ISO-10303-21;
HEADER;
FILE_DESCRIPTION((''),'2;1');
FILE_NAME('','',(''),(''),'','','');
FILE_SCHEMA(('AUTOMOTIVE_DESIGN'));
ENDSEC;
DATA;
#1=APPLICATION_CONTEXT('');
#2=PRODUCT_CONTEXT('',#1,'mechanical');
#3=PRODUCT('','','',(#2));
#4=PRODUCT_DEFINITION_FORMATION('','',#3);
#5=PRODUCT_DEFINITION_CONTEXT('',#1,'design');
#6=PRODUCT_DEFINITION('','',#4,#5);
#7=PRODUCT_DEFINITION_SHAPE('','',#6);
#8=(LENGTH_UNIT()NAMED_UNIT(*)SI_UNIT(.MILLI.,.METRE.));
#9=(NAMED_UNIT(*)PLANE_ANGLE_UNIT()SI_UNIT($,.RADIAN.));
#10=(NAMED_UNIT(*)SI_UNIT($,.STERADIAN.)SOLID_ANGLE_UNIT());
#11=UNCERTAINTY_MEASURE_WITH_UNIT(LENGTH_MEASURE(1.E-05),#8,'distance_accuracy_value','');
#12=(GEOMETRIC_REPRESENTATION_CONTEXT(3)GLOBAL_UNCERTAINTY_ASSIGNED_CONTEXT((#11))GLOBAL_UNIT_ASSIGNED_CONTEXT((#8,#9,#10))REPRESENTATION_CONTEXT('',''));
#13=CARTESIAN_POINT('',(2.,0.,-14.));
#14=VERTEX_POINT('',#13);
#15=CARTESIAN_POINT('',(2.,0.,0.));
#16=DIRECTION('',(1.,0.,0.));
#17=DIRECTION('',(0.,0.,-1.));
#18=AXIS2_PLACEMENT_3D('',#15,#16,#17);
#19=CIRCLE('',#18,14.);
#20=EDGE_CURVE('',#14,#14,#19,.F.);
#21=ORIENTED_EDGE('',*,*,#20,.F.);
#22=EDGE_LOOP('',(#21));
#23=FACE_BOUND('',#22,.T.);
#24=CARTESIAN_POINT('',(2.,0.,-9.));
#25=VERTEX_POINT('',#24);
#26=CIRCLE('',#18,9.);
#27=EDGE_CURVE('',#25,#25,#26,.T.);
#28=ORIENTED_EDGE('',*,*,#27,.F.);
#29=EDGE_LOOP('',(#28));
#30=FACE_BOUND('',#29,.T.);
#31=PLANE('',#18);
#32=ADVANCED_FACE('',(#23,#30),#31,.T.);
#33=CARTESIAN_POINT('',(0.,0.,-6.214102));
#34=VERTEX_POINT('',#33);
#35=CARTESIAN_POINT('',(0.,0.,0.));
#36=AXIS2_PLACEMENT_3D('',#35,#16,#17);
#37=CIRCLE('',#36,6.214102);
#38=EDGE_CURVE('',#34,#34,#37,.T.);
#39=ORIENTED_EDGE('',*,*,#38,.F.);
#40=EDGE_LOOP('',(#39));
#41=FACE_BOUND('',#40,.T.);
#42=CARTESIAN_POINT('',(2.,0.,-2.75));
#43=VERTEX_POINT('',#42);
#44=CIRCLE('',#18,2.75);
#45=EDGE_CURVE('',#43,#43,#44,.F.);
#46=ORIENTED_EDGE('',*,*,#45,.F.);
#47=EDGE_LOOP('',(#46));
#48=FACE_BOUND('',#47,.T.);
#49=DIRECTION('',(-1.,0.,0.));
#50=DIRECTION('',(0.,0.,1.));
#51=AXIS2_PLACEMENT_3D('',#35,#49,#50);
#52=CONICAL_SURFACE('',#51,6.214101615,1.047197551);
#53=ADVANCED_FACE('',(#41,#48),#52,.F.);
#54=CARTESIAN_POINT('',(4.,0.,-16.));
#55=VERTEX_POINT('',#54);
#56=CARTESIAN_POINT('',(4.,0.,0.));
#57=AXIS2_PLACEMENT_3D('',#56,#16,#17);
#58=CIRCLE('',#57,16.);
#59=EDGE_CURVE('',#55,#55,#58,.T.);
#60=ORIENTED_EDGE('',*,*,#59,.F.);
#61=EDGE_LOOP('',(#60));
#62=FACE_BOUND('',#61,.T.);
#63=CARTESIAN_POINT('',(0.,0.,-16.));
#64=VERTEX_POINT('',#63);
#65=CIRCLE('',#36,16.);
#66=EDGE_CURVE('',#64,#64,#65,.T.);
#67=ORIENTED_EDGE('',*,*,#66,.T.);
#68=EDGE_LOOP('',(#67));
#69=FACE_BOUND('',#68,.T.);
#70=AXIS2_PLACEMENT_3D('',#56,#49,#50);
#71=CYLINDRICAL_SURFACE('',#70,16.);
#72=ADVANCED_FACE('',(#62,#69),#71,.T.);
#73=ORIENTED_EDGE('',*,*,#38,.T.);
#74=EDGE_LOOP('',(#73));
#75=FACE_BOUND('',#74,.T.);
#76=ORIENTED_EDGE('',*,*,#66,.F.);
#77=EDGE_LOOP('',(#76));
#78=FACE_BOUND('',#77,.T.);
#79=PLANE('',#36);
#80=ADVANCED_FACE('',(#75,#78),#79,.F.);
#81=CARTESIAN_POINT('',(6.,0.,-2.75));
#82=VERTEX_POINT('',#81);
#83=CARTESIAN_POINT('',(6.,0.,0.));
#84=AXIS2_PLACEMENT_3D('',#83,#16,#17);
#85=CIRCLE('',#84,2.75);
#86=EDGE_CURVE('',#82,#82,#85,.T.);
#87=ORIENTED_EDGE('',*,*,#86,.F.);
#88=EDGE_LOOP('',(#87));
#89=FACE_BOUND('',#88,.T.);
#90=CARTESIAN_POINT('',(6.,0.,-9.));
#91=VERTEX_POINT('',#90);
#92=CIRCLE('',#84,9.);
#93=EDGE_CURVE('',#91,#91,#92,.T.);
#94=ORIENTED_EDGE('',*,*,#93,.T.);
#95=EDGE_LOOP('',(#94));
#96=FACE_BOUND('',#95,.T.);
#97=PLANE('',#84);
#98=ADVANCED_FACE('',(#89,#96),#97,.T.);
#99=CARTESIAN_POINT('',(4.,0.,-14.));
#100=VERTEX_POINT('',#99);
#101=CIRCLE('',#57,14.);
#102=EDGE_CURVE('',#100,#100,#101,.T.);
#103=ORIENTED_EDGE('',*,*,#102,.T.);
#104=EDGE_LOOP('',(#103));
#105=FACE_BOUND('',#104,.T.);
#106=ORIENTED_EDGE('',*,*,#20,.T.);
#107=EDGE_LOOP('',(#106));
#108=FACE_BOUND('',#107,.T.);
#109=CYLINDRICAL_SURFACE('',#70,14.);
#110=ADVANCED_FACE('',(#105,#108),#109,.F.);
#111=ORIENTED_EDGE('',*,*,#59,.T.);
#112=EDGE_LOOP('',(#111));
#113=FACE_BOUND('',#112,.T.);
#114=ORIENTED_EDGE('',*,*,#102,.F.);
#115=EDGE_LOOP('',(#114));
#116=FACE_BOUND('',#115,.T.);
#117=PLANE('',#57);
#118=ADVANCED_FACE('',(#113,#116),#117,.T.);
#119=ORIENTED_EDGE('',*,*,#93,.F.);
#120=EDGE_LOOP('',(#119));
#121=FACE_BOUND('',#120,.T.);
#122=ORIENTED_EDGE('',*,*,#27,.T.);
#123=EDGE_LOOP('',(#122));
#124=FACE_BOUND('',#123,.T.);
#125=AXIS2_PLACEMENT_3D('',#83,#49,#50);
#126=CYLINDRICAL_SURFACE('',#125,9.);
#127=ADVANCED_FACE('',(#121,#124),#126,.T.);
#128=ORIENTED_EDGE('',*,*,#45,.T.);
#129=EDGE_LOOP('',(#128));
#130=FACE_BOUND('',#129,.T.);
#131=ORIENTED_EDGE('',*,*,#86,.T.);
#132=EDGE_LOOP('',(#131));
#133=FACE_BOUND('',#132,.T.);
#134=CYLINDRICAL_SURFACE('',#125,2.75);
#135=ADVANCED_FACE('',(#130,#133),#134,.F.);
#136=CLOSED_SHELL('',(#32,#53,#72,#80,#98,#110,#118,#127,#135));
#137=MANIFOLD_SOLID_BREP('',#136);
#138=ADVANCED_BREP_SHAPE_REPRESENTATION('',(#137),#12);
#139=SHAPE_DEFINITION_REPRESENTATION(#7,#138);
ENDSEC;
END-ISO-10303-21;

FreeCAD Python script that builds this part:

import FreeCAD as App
import Part
import Sketcher
Q = App.Units.Quantity


def edges_at(feature, points):
    """Names of the edges that pass closest to the given points."""
    edges = feature.Shape.Edges
    near = lambda p: min(range(len(edges)), key=lambda i: edges[i].distToShape(Part.Vertex(*p))[0])
    return sorted({f"Edge{near(p) + 1}" for p in points})

doc = App.newDocument("Part")
params = doc.addObject("Spreadsheet::Sheet", "Params")
for row, (alias, value) in enumerate([
    ("sketch1_diameter", "28 mm"),
    ("sketch1_diameter2", "18 mm"),
    ("pad1_length", "2 mm"),
    ("sketch2_diameter", "32 mm"),
    ("sketch2_diameter2", "28 mm"),
    ("pad2_length", "4 mm"),
    ("sketch3_diameter", "18 mm"),
    ("sketch3_diameter2", "5.5 mm"),
    ("pad3_length", "6 mm"),
    ("chamfer_size", "2 mm"),
    ("chamfer_size2", "3.464102 mm"),
], start=1):
    params.set(f"A{row}", alias)
    params.set(f"B{row}", "=" + value)
    params.setAlias(f"B{row}", alias)

body = doc.addObject("PartDesign::Body", "Body")

# Sketch on YZ plane
sketch1 = body.newObject("Sketcher::SketchObject", "Sketch")
sketch1.AttachmentSupport = (doc.getObject("YZ_Plane"), [""])
sketch1.MapMode = "FlatFace"
sketch1.addGeometry([
    Part.Circle(App.Vector(0, 0, 0), App.Vector(0, 0, 1), 14),
    Part.Circle(App.Vector(0, 0, 0), App.Vector(0, 0, 1), 9),
], False)
sketch1.addConstraint([
    Sketcher.Constraint("Coincident", 0, 3, -1, 1),
    Sketcher.Constraint("Coincident", 1, 3, -1, 1),
    Sketcher.Constraint("Diameter", 0, Q("28 mm")),
    Sketcher.Constraint("Diameter", 1, Q("18 mm")),
])
sketch1.setExpression("Constraints[2]", "Params.sketch1_diameter")
sketch1.setExpression("Constraints[3]", "Params.sketch1_diameter2")
pad1 = body.newObject("PartDesign::Pad", "Pad")
pad1.Profile = sketch1
pad1.setExpression("Length", "Params.pad1_length")

# Sketch on YZ plane
sketch2 = body.newObject("Sketcher::SketchObject", "Sketch001")
sketch2.AttachmentSupport = (doc.getObject("YZ_Plane"), [""])
sketch2.MapMode = "FlatFace"
sketch2.addGeometry([
    Part.Circle(App.Vector(0, 0, 0), App.Vector(0, 0, 1), 16),
    Part.Circle(App.Vector(0, 0, 0), App.Vector(0, 0, 1), 14),
], False)
sketch2.addConstraint([
    Sketcher.Constraint("Coincident", 0, 3, -1, 1),
    Sketcher.Constraint("Coincident", 1, 3, -1, 1),
    Sketcher.Constraint("Diameter", 0, Q("32 mm")),
    Sketcher.Constraint("Diameter", 1, Q("28 mm")),
])
sketch2.setExpression("Constraints[2]", "Params.sketch2_diameter")
sketch2.setExpression("Constraints[3]", "Params.sketch2_diameter2")
pad2 = body.newObject("PartDesign::Pad", "Pad001")
pad2.Profile = sketch2
pad2.setExpression("Length", "Params.pad2_length")

# Sketch on YZ plane
sketch3 = body.newObject("Sketcher::SketchObject", "Sketch002")
sketch3.AttachmentSupport = (doc.getObject("YZ_Plane"), [""])
sketch3.MapMode = "FlatFace"
sketch3.addGeometry([
    Part.Circle(App.Vector(0, 0, 0), App.Vector(0, 0, 1), 9),
    Part.Circle(App.Vector(0, 0, 0), App.Vector(0, 0, 1), 2.8),
], False)
sketch3.addConstraint([
    Sketcher.Constraint("Coincident", 0, 3, -1, 1),
    Sketcher.Constraint("Coincident", 1, 3, -1, 1),
    Sketcher.Constraint("Diameter", 0, Q("18 mm")),
    Sketcher.Constraint("Diameter", 1, Q("5.5 mm")),
])
sketch3.setExpression("Constraints[2]", "Params.sketch3_diameter")
sketch3.setExpression("Constraints[3]", "Params.sketch3_diameter2")
pad3 = body.newObject("PartDesign::Pad", "Pad002")
pad3.Profile = sketch3
pad3.setExpression("Length", "Params.pad3_length")
doc.recompute()

chamfer = body.newObject("PartDesign::Chamfer", "Chamfer")
chamfer.Base = (pad3, edges_at(pad3, [(0, 0, 2.75)]))
chamfer.ChamferType = "Two distances"
chamfer.setExpression("Size", "Params.chamfer_size")
chamfer.setExpression("Size2", "Params.chamfer_size2")

doc.recompute()
